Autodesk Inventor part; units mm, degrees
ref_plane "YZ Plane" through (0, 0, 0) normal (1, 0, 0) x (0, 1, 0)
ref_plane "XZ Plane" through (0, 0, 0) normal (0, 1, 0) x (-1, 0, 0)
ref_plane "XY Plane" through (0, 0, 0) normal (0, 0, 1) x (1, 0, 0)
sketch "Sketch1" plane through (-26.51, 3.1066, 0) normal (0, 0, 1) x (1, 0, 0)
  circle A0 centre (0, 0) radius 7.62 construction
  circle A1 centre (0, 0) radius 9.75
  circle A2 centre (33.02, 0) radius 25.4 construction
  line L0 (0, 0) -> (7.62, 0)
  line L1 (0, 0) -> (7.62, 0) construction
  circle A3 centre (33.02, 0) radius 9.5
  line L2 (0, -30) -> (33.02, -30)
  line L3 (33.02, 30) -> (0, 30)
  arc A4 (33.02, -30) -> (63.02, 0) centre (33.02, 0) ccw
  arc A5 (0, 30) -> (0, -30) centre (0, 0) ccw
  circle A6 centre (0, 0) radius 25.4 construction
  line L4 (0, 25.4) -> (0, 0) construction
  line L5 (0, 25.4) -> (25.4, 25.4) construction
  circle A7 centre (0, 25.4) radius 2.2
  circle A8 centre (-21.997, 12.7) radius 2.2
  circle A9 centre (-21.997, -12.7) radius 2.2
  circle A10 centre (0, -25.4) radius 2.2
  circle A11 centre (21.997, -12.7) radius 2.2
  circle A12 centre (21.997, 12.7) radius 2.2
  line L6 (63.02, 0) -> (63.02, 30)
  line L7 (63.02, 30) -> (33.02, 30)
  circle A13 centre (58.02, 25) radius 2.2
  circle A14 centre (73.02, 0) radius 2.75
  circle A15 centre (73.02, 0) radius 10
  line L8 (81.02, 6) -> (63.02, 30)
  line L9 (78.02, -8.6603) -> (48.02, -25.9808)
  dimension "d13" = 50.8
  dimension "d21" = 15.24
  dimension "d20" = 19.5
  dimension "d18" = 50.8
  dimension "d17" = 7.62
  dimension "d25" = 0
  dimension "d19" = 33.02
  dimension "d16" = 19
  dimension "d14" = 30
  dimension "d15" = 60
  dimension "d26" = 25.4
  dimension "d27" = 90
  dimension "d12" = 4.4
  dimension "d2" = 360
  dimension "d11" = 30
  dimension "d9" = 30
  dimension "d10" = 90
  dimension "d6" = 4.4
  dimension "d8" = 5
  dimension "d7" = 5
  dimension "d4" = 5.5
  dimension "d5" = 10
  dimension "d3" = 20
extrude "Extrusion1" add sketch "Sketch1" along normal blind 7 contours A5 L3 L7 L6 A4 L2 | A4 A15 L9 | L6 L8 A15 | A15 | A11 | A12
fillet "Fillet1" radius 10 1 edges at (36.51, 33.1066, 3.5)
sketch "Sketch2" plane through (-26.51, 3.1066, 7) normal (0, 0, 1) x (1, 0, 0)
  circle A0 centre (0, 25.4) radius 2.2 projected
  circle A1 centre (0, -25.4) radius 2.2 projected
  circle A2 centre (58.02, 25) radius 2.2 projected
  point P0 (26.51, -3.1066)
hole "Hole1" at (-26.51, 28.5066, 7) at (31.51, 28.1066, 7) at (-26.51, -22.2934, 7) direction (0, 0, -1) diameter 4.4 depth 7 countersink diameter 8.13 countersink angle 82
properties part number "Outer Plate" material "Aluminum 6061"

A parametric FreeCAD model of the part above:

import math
import FreeCAD as App
import Part
import Sketcher

V = App.Vector
Q = App.Units.Quantity


def edges_at(feature, points):
    """Names of the edges that pass closest to the given points."""
    edges = feature.Shape.Edges
    near = lambda p: min(range(len(edges)), key=lambda i: edges[i].distToShape(Part.Vertex(*p))[0])
    return sorted({f"Edge{near(p) + 1}" for p in points})

doc = App.newDocument("Part")
body = doc.addObject("PartDesign::Body", "Body")

# Sketch on XY plane
sketch1 = body.newObject("Sketcher::SketchObject", "Sketch")
sketch1.AttachmentSupport = (doc.getObject("XY_Plane"), [""])
sketch1.MapMode = "FlatFace"
sketch1.addGeometry(Part.ArcOfCircle(Part.Circle(V(-26.5, 3.1, 0), V(0, 0, 1), 30), math.radians(90), math.radians(270)), False)
sketch1.addGeometry(Part.LineSegment(V(-26.5, -26.9, 0), V(6.5, -26.9, 0)), False)
sketch1.addGeometry(Part.ArcOfCircle(Part.Circle(V(6.5, 3.1, 0), V(0, 0, 1), 30), math.radians(-90), math.radians(-60)), False)
sketch1.addGeometry(Part.LineSegment(V(21.5, -22.9, 0), V(51.5, -5.6, 0)), False)
sketch1.addGeometry(Part.ArcOfCircle(Part.Circle(V(46.5, 3.1, 0), V(0, 0, 1), 10), math.radians(-60), math.radians(37)), False)
sketch1.addGeometry(Part.LineSegment(V(54.5, 9.1, 0), V(36.5, 33.1, 0)), False)
sketch1.addGeometry(Part.LineSegment(V(36.5, 33.1, 0), V(-26.5, 33.1, 0)), False)
sketch1.addGeometry(Part.Circle(V(-26.5, -22.3, 0), V(0, 0, 1), 2.2), False)
sketch1.addGeometry(Part.Circle(V(-48.5, -9.6, 0), V(0, 0, 1), 2.2), False)
sketch1.addGeometry(Part.Circle(V(-48.5, 15.8, 0), V(0, 0, 1), 2.2), False)
sketch1.addGeometry(Part.Circle(V(-26.5, 3.1, 0), V(0, 0, 1), 9.8), False)
sketch1.addGeometry(Part.Circle(V(-26.5, 28.5, 0), V(0, 0, 1), 2.2), False)
sketch1.addGeometry(Part.Circle(V(6.5, 3.1, 0), V(0, 0, 1), 9.5), False)
sketch1.addGeometry(Part.Circle(V(31.5, 28.1, 0), V(0, 0, 1), 2.2), False)
sketch1.addGeometry(Part.Circle(V(46.5, 3.1, 0), V(0, 0, 1), 2.8), False)
sketch1.addConstraint(Sketcher.Constraint("Tangent", 0, 2, 1, 1))
sketch1.addConstraint(Sketcher.Constraint("Tangent", 1, 2, 2, 1))
sketch1.addConstraint(Sketcher.Constraint("Tangent", 2, 2, 3, 1))
sketch1.addConstraint(Sketcher.Constraint("Tangent", 3, 2, 4, 1))
sketch1.addConstraint(Sketcher.Constraint("Tangent", 4, 2, 5, 1))
sketch1.addConstraint(Sketcher.Constraint("Coincident", 5, 2, 6, 1))
sketch1.addConstraint(Sketcher.Constraint("Tangent", 6, 2, 0, 1))
sketch1.addConstraint(Sketcher.Constraint("Horizontal", 1))
sketch1.addConstraint(Sketcher.Constraint("Horizontal", 6))
sketch1.addConstraint(Sketcher.Constraint("Coincident", 10, 3, 0, 3))
sketch1.addConstraint(Sketcher.Constraint("Coincident", 12, 3, 2, 3))
sketch1.addConstraint(Sketcher.Constraint("Coincident", 14, 3, 4, 3))
sketch1.addConstraint(Sketcher.Constraint("Equal", 0, 2))
sketch1.addConstraint(Sketcher.Constraint("Equal", 7, 8))
sketch1.addConstraint(Sketcher.Constraint("Equal", 8, 9))
sketch1.addConstraint(Sketcher.Constraint("Equal", 9, 11))
sketch1.addConstraint(Sketcher.Constraint("Equal", 11, 13))
sketch1.addConstraint(Sketcher.Constraint("Horizontal", 2, 3, 4, 3))
sketch1.addConstraint(Sketcher.Constraint("Vertical", 0, 3, 7, 3))
sketch1.addConstraint(Sketcher.Constraint("Vertical", 8, 3, 9, 3))
sketch1.addConstraint(Sketcher.Constraint("Vertical", 10, 3, 11, 3))
sketch1.addConstraint(Sketcher.Constraint("Diameter", 12, Q("19 mm")))
sketch1.addConstraint(Sketcher.Constraint("Radius", 0, Q("30 mm")))
sketch1.addConstraint(Sketcher.Constraint("Radius", 4, Q("10 mm")))
sketch1.addConstraint(Sketcher.Constraint("Diameter", 7, Q("4.4 mm")))
sketch1.addConstraint(Sketcher.Constraint("Diameter", 10, Q("19.5 mm")))
sketch1.addConstraint(Sketcher.Constraint("Diameter", 14, Q("5.5 mm")))
sketch1.addConstraint(Sketcher.Constraint("Angle", 3, Q("30 deg")))
sketch1.addConstraint(Sketcher.Constraint("Distance", 5, Q("30 mm")))
sketch1.addConstraint(Sketcher.Constraint("DistanceX", 13, 3, 3, 2, Q("20 mm")))
sketch1.addConstraint(Sketcher.Constraint("DistanceY", 4, 2, 13, 3, Q("19 mm")))
sketch1.addConstraint(Sketcher.Constraint("DistanceX", 1, 1, 1, 2, Q("33.02 mm")))
sketch1.addConstraint(Sketcher.Constraint("DistanceY", 7, 3, 0, 3, Q("25.4 mm")))
sketch1.addConstraint(Sketcher.Constraint("DistanceY", 8, 3, 9, 3, Q("25.4 mm")))
sketch1.addConstraint(Sketcher.Constraint("DistanceY", 0, 3, 11, 3, Q("25.4 mm")))
sketch1.addConstraint(Sketcher.Constraint("DistanceY", 7, 3, 8, 3, Q("12.7 mm")))
sketch1.addConstraint(Sketcher.Constraint("DistanceX", 0, 3, -1, 1, Q("26.51 mm")))
sketch1.addConstraint(Sketcher.Constraint("DistanceX", 8, 3, -1, 1, Q("48.507 mm")))
sketch1.addConstraint(Sketcher.Constraint("DistanceY", -1, 1, 0, 3, Q("3.1066 mm")))
pad1 = body.newObject("PartDesign::Pad", "Pad")
pad1.Profile = sketch1
pad1.Length = 7
doc.recompute()

fillet = body.newObject("PartDesign::Fillet", "Fillet")
fillet.Base = (pad1, edges_at(pad1, [(36.51, 33.107, 3.5)]))
fillet.Radius = 10

# Sketch on XY plane
sketch2 = body.newObject("Sketcher::SketchObject", "Sketch001")
sketch2.AttachmentSupport = (doc.getObject("XY_Plane"), [""])
sketch2.MapMode = "FlatFace"
sketch2.AttachmentOffset = App.Placement(V(0, 0, 7), App.Rotation())
sketch2.addGeometry(Part.Circle(V(-26.5, 28.5, 0), V(0, 0, 1), 2.2), False)
sketch2.addGeometry(Part.Circle(V(31.5, 28.1, 0), V(0, 0, 1), 2.2), False)
sketch2.addGeometry(Part.Circle(V(-26.5, -22.3, 0), V(0, 0, 1), 2.2), False)
sketch2.addConstraint(Sketcher.Constraint("Equal", 0, 1))
sketch2.addConstraint(Sketcher.Constraint("Equal", 1, 2))
sketch2.addConstraint(Sketcher.Constraint("Vertical", 0, 3, 2, 3))
sketch2.addConstraint(Sketcher.Constraint("Diameter", 0, Q("4.4 mm")))
sketch2.addConstraint(Sketcher.Constraint("DistanceY", 1, 3, 0, 3, Q("0.4 mm")))
sketch2.addConstraint(Sketcher.Constraint("DistanceY", 2, 3, 0, 3, Q("50.8 mm")))
sketch2.addConstraint(Sketcher.Constraint("DistanceX", 0, 3, -1, 1, Q("26.51 mm")))
sketch2.addConstraint(Sketcher.Constraint("DistanceX", -1, 1, 1, 3, Q("31.51 mm")))
sketch2.addConstraint(Sketcher.Constraint("DistanceY", -1, 1, 0, 3, Q("28.5066 mm")))
doc.recompute()
hole = body.newObject("PartDesign::Hole", "Hole")
hole.Profile = sketch2
hole.ThreadType = "None"
hole.Diameter = 4.4
hole.DepthType = "Dimension"
hole.Depth = 7
hole.DrillPoint = "Flat"
hole.HoleCutType = "Countersink"
hole.HoleCutDiameter = 8.13
hole.HoleCutCountersinkAngle = 82

doc.recompute()
